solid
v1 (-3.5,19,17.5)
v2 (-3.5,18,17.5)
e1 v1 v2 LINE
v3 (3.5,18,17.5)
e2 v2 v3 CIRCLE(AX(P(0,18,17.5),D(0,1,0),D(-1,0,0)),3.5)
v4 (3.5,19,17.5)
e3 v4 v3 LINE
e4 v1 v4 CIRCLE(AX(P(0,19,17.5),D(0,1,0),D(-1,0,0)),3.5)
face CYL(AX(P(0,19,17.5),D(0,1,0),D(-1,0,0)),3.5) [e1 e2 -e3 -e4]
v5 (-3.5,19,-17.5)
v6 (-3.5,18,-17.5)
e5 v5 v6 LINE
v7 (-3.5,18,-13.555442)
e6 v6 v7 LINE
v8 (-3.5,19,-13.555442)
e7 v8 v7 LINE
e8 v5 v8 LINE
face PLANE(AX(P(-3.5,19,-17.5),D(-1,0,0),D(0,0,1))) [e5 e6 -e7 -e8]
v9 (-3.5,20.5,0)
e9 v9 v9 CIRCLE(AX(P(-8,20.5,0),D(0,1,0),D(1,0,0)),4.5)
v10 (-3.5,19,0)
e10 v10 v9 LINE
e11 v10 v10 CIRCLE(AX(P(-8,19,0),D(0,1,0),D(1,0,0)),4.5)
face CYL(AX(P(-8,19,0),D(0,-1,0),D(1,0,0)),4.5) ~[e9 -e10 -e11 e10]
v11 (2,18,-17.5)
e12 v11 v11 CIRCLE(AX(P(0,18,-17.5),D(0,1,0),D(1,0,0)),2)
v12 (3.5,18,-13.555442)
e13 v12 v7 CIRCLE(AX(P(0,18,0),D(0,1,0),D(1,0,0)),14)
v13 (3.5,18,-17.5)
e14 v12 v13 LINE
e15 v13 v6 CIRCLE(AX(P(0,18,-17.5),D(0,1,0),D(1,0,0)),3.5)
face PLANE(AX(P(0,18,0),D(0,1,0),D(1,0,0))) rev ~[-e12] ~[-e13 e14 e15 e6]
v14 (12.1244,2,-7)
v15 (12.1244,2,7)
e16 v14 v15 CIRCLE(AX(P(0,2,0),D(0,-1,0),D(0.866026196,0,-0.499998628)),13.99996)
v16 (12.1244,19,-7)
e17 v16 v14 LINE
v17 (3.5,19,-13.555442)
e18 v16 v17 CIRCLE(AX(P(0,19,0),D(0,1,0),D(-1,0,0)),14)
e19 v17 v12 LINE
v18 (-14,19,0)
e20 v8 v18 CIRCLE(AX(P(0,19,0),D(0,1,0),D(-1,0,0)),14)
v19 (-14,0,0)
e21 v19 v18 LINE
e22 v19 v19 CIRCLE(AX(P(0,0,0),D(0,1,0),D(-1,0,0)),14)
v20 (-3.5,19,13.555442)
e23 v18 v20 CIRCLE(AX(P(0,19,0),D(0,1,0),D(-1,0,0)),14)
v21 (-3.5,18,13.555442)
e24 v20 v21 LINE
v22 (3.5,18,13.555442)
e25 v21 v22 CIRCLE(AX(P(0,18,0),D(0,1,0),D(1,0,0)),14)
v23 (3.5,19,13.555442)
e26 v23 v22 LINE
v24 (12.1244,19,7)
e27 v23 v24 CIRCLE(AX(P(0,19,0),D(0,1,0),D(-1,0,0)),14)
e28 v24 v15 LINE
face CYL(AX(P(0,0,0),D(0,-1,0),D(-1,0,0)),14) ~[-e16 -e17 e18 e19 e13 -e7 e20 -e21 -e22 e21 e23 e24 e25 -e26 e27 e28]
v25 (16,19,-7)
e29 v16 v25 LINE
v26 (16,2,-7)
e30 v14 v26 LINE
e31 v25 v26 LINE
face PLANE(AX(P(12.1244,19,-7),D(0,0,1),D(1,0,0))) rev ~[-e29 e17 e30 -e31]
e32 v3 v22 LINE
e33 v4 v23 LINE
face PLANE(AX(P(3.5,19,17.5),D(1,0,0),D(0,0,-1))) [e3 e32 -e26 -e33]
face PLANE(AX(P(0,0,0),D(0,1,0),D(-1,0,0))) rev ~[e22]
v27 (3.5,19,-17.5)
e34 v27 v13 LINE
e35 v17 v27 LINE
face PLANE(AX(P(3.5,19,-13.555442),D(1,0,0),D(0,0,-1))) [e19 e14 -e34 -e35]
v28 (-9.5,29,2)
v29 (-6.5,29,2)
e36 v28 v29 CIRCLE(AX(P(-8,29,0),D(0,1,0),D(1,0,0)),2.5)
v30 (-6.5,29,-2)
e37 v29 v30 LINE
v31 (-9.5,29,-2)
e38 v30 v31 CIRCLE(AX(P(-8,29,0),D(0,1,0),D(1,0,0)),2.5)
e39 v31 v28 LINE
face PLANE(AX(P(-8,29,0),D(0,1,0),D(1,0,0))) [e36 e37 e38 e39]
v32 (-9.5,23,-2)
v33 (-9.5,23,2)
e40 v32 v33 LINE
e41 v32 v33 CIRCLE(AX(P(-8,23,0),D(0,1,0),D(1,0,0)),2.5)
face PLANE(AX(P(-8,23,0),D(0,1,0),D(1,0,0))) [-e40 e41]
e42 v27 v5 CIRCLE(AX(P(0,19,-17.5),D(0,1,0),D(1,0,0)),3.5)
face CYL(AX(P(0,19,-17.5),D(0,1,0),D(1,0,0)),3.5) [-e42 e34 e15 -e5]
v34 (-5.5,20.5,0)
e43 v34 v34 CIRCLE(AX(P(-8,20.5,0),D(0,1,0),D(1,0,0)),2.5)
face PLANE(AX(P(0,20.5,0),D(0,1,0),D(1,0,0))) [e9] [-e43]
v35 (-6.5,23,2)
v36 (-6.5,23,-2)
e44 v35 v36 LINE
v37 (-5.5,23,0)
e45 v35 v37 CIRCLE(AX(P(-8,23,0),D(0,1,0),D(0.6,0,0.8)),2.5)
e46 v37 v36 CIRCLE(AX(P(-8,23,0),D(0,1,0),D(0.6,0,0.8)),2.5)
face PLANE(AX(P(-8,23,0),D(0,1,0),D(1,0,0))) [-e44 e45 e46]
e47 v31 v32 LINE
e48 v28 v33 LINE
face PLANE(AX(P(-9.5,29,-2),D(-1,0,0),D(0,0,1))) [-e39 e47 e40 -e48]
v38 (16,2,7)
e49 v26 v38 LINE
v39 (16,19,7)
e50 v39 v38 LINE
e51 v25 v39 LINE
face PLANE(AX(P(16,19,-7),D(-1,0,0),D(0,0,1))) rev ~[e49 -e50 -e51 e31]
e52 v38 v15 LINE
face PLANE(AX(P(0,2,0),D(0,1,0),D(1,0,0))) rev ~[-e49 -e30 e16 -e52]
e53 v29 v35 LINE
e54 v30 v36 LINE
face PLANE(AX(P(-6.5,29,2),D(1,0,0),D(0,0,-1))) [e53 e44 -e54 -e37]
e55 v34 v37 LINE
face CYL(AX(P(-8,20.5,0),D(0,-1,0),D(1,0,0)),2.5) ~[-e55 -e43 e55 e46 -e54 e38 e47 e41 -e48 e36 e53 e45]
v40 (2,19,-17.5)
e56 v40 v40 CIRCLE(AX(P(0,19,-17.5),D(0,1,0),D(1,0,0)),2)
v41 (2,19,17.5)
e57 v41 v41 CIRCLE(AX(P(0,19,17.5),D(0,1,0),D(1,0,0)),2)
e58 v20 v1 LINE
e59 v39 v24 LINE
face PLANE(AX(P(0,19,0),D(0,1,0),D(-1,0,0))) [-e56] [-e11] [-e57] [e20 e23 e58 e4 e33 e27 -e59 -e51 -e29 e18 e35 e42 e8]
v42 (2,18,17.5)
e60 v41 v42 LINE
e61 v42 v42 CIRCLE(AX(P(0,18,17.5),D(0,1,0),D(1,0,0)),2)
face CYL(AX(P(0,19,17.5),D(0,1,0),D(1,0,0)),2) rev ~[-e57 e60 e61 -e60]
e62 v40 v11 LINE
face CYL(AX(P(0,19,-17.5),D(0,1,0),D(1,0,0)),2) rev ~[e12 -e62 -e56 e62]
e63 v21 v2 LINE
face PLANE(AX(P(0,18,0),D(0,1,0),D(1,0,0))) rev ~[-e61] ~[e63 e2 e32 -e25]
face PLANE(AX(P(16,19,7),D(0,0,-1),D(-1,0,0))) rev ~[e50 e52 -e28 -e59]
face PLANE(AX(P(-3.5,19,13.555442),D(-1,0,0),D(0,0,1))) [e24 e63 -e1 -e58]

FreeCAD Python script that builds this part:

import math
import FreeCAD as App
import Part
import Sketcher

V = App.Vector

doc = App.newDocument("Part")
body = doc.addObject("PartDesign::Body", "Body")

# Sketch on XZ plane
sketch1 = doc.addObject("Sketcher::SketchObject", "Sketch")
body.addObject(sketch1)
sketch1.AttachmentSupport = (doc.XZ_Plane, [""])
sketch1.MapMode = "FlatFace"
sketch1.addGeometry(Part.Circle(V(0, 0, 0), V(0, 0, 1), 14), False)
sketch1.addConstraint(Sketcher.Constraint("Coincident", 0, 3, -1, 1))
sketch1.addConstraint(Sketcher.Constraint("Diameter", 0, 28.0))
pad1 = doc.addObject("PartDesign::Pad", "Pad")
body.addObject(pad1)
pad1.Profile = sketch1
pad1.Length = 19
pad1.Reversed = True

# Sketch on XZ plane
sketch2 = doc.addObject("Sketcher::SketchObject", "Sketch001")
body.addObject(sketch2)
sketch2.AttachmentSupport = (doc.XZ_Plane, [""])
sketch2.MapMode = "FlatFace"
sketch2.AttachmentOffset = App.Placement(V(0, 0, -19), App.Rotation())
sketch2.addGeometry(Part.Circle(V(-8, 0, 0), V(0, 0, 1), 4.5), False)
sketch2.addConstraint(Sketcher.Constraint("PointOnObject", 0, 3, -1))
sketch2.addConstraint(Sketcher.Constraint("Diameter", 0, 9.0))
sketch2.addConstraint(Sketcher.Constraint("DistanceX", 0, 3, -1, 1, 8.0))
pad2 = doc.addObject("PartDesign::Pad", "Pad001")
body.addObject(pad2)
pad2.Profile = sketch2
pad2.Length = 1.5
pad2.Reversed = True

# Sketch on XZ plane
sketch3 = doc.addObject("Sketcher::SketchObject", "Sketch002")
body.addObject(sketch3)
sketch3.AttachmentSupport = (doc.XZ_Plane, [""])
sketch3.MapMode = "FlatFace"
sketch3.AttachmentOffset = App.Placement(V(0, 0, -20.5), App.Rotation())
sketch3.addGeometry(Part.Circle(V(-8, 0, 0), V(0, 0, 1), 2.5), False)
sketch3.addConstraint(Sketcher.Constraint("PointOnObject", 0, 3, -1))
sketch3.addConstraint(Sketcher.Constraint("Diameter", 0, 5.0))
sketch3.addConstraint(Sketcher.Constraint("DistanceX", 0, 3, -1, 1, 8.0))
pad3 = doc.addObject("PartDesign::Pad", "Pad002")
body.addObject(pad3)
pad3.Profile = sketch3
pad3.Length = 8.5
pad3.Reversed = True

# Sketch on XZ plane
sketch4 = doc.addObject("Sketcher::SketchObject", "Sketch003")
body.addObject(sketch4)
sketch4.AttachmentSupport = (doc.XZ_Plane, [""])
sketch4.MapMode = "FlatFace"
sketch4.AttachmentOffset = App.Placement(V(0, 0, -29), App.Rotation())
sketch4.addGeometry(Part.ArcOfCircle(Part.Circle(V(-8, 0, 0), V(0, 0, 1), 2.5), math.radians(-53), math.radians(53)), False)
sketch4.addGeometry(Part.LineSegment(V(-6.5, -2, 0), V(-6.5, 2, 0)), False)
sketch4.addGeometry(Part.LineSegment(V(-9.5, 2, 0), V(-9.5, -2, 0)), False)
sketch4.addGeometry(Part.ArcOfCircle(Part.Circle(V(-8, 0, 0), V(0, 0, 1), 2.5), math.radians(127), math.radians(233)), False)
sketch4.addConstraint(Sketcher.Constraint("Coincident", 0, 1, 1, 1))
sketch4.addConstraint(Sketcher.Constraint("Coincident", 1, 2, 0, 2))
sketch4.addConstraint(Sketcher.Constraint("Coincident", 2, 1, 3, 1))
sketch4.addConstraint(Sketcher.Constraint("Coincident", 3, 2, 2, 2))
sketch4.addConstraint(Sketcher.Constraint("Vertical", 1))
sketch4.addConstraint(Sketcher.Constraint("Vertical", 2))
sketch4.addConstraint(Sketcher.Constraint("Coincident", 3, 3, 0, 3))
sketch4.addConstraint(Sketcher.Constraint("Equal", 0, 3))
sketch4.addConstraint(Sketcher.Constraint("PointOnObject", 0, 3, -1))
sketch4.addConstraint(Sketcher.Constraint("Horizontal", 1, 2, 2, 1))
sketch4.addConstraint(Sketcher.Constraint("DistanceX", 2, 1, 1, 2, 3.0))
sketch4.addConstraint(Sketcher.Constraint("Radius", 0, 2.5))
sketch4.addConstraint(Sketcher.Constraint("DistanceX", 0, 3, -1, 1, 8.0))
pocket1 = doc.addObject("PartDesign::Pocket", "Pocket")
body.addObject(pocket1)
pocket1.Profile = sketch4
pocket1.Length = 6
pocket1.Reversed = True

# Sketch on XZ plane
sketch5 = doc.addObject("Sketcher::SketchObject", "Sketch004")
body.addObject(sketch5)
sketch5.AttachmentSupport = (doc.XZ_Plane, [""])
sketch5.MapMode = "FlatFace"
sketch5.AttachmentOffset = App.Placement(V(0, 0, -19), App.Rotation())
sketch5.addGeometry(Part.LineSegment(V(-3.5, -17.5, 0), V(-3.5, -13.6, 0)), False)
sketch5.addGeometry(Part.ArcOfCircle(Part.Circle(V(0, 0, 0), V(0, 0, 1), 14), math.radians(-104), math.radians(-76)), False)
sketch5.addGeometry(Part.LineSegment(V(3.5, -13.6, 0), V(3.5, -17.5, 0)), False)
sketch5.addGeometry(Part.ArcOfCircle(Part.Circle(V(0, -17.5, 0), V(0, 0, 1), 3.5), math.radians(180), math.radians(360)), False)
sketch5.addGeometry(Part.Circle(V(0, -17.5, 0), V(0, 0, 1), 2), False)
sketch5.addGeometry(Part.ArcOfCircle(Part.Circle(V(0, 0, 0), V(0, 0, 1), 14), math.radians(76), math.radians(104)), False)
sketch5.addGeometry(Part.LineSegment(V(-3.5, 13.6, 0), V(-3.5, 17.5, 0)), False)
sketch5.addGeometry(Part.ArcOfCircle(Part.Circle(V(0, 17.5, 0), V(0, 0, 1), 3.5), math.radians(0), math.radians(180)), False)
sketch5.addGeometry(Part.LineSegment(V(3.5, 17.5, 0), V(3.5, 13.6, 0)), False)
sketch5.addGeometry(Part.Circle(V(0, 17.5, 0), V(0, 0, 1), 2), False)
sketch5.addConstraint(Sketcher.Constraint("Coincident", 0, 2, 1, 1))
sketch5.addConstraint(Sketcher.Constraint("Coincident", 1, 2, 2, 1))
sketch5.addConstraint(Sketcher.Constraint("Tangent", 2, 2, 3, 2))
sketch5.addConstraint(Sketcher.Constraint("Tangent", 3, 1, 0, 1))
sketch5.addConstraint(Sketcher.Constraint("Coincident", 5, 2, 6, 1))
sketch5.addConstraint(Sketcher.Constraint("Tangent", 6, 2, 7, 2))
sketch5.addConstraint(Sketcher.Constraint("Tangent", 7, 1, 8, 1))
sketch5.addConstraint(Sketcher.Constraint("Coincident", 8, 2, 5, 1))
sketch5.addConstraint(Sketcher.Constraint("Vertical", 0))
sketch5.addConstraint(Sketcher.Constraint("Vertical", 2))
sketch5.addConstraint(Sketcher.Constraint("Vertical", 6))
sketch5.addConstraint(Sketcher.Constraint("Vertical", 8))
sketch5.addConstraint(Sketcher.Constraint("Coincident", 1, 3, -1, 1))
sketch5.addConstraint(Sketcher.Constraint("Coincident", 5, 3, -1, 1))
sketch5.addConstraint(Sketcher.Constraint("Coincident", 4, 3, 3, 3))
sketch5.addConstraint(Sketcher.Constraint("Coincident", 9, 3, 7, 3))
sketch5.addConstraint(Sketcher.Constraint("Equal", 1, 5))
sketch5.addConstraint(Sketcher.Constraint("Equal", 3, 7))
sketch5.addConstraint(Sketcher.Constraint("Equal", 4, 9))
sketch5.addConstraint(Sketcher.Constraint("Symmetric", 3, 3, 7, 3, -1, 1))
sketch5.addConstraint(Sketcher.Constraint("PointOnObject", 3, 3, -2))
sketch5.addConstraint(Sketcher.Constraint("Diameter", 4, 4.0))
sketch5.addConstraint(Sketcher.Constraint("Radius", 3, 3.5))
sketch5.addConstraint(Sketcher.Constraint("Radius", 1, 14.0))
sketch5.addConstraint(Sketcher.Constraint("DistanceY", 3, 3, 7, 3, 35.0))
pad4 = doc.addObject("PartDesign::Pad", "Pad003")
body.addObject(pad4)
pad4.Profile = sketch5
pad4.Length = 1

# Sketch on XZ plane
sketch6 = doc.addObject("Sketcher::SketchObject", "Sketch005")
body.addObject(sketch6)
sketch6.AttachmentSupport = (doc.XZ_Plane, [""])
sketch6.MapMode = "FlatFace"
sketch6.AttachmentOffset = App.Placement(V(0, 0, -19), App.Rotation())
sketch6.addGeometry(Part.ArcOfCircle(Part.Circle(V(0, 0, 0), V(0, 0, 1), 14), math.radians(-30), math.radians(30)), False)
sketch6.addGeometry(Part.LineSegment(V(12.1, 7, 0), V(16, 7, 0)), False)
sketch6.addGeometry(Part.LineSegment(V(16, 7, 0), V(16, -7, 0)), False)
sketch6.addGeometry(Part.LineSegment(V(16, -7, 0), V(12.1, -7, 0)), False)
sketch6.addConstraint(Sketcher.Constraint("Coincident", 0, 2, 1, 1))
sketch6.addConstraint(Sketcher.Constraint("Coincident", 1, 2, 2, 1))
sketch6.addConstraint(Sketcher.Constraint("Coincident", 2, 2, 3, 1))
sketch6.addConstraint(Sketcher.Constraint("Coincident", 3, 2, 0, 1))
sketch6.addConstraint(Sketcher.Constraint("Horizontal", 1))
sketch6.addConstraint(Sketcher.Constraint("Vertical", 2))
sketch6.addConstraint(Sketcher.Constraint("Horizontal", 3))
sketch6.addConstraint(Sketcher.Constraint("Coincident", 0, 3, -1, 1))
sketch6.addConstraint(Sketcher.Constraint("Vertical", 0, 2, 3, 2))
sketch6.addConstraint(Sketcher.Constraint("DistanceY", -1, 1, 0, 2, 7.0))
sketch6.addConstraint(Sketcher.Constraint("Radius", 0, 14.0))
sketch6.addConstraint(Sketcher.Constraint("DistanceX", -1, 1, 1, 2, 16.0))
pad5 = doc.addObject("PartDesign::Pad", "Pad004")
body.addObject(pad5)
pad5.Profile = sketch6
pad5.Length = 17

doc.recompute()
